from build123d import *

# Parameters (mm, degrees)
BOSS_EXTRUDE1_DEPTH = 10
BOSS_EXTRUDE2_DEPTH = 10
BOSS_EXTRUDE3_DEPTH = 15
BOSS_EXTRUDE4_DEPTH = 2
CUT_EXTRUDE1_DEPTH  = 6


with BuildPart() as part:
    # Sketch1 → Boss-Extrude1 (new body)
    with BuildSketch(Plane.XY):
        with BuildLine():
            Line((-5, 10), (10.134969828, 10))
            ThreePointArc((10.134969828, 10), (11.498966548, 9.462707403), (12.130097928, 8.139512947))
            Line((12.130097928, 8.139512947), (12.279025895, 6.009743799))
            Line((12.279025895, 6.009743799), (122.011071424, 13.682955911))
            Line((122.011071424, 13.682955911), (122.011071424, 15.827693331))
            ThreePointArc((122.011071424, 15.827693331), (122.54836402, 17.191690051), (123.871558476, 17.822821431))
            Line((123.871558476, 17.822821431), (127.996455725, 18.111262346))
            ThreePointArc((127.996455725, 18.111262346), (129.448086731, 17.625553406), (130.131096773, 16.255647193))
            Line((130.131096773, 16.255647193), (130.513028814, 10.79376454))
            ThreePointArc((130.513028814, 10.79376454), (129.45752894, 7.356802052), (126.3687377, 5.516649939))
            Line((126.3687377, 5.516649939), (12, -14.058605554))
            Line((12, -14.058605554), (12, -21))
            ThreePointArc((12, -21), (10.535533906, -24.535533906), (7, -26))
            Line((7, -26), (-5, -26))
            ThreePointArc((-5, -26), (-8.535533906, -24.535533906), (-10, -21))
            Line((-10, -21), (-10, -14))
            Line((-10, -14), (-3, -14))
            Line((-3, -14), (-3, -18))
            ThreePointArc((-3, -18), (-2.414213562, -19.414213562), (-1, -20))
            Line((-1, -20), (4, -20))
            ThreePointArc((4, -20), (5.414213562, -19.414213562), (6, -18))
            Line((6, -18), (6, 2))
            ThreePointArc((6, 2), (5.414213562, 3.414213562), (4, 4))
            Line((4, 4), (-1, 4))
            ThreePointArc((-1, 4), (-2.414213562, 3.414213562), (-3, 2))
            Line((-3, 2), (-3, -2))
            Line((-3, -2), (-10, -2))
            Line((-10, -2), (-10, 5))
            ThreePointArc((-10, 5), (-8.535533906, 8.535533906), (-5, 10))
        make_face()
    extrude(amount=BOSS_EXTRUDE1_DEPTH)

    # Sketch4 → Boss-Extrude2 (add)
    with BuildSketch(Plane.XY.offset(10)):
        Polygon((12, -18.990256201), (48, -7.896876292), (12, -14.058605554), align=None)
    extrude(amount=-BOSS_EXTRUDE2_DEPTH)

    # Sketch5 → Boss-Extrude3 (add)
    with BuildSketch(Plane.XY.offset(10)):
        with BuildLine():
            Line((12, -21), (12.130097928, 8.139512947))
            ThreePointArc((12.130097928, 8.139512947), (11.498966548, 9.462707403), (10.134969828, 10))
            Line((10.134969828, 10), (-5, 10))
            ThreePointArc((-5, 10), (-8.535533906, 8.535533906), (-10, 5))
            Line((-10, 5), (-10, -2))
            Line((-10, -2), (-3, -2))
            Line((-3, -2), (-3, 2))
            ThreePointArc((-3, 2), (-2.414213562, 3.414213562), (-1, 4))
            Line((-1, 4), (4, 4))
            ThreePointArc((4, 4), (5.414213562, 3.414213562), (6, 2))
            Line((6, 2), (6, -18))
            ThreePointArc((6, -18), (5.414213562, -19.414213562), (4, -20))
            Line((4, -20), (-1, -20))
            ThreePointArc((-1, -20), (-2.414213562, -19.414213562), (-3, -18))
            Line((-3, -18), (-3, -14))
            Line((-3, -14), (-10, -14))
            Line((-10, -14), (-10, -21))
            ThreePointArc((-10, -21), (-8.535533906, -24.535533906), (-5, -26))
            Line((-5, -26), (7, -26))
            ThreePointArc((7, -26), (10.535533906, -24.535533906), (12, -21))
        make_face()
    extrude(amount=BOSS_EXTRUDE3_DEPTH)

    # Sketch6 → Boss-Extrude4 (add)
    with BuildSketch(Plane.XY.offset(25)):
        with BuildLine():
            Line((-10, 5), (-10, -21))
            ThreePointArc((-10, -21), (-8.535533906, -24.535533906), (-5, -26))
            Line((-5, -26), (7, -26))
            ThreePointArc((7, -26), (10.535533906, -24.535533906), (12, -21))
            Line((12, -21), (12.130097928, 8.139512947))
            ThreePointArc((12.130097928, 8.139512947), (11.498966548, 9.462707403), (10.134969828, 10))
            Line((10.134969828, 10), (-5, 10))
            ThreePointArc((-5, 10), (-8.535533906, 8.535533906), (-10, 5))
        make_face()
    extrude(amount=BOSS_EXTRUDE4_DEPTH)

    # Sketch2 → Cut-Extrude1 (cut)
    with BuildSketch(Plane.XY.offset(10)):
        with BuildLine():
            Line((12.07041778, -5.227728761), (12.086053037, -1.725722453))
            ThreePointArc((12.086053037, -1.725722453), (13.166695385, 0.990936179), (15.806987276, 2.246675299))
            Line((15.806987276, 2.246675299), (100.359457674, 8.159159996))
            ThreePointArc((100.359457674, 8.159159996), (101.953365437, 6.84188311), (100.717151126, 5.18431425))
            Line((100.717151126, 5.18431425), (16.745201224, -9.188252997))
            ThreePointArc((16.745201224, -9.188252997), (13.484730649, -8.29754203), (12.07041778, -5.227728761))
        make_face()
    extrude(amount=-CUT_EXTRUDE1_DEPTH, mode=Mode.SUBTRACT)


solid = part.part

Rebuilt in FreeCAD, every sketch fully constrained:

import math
import FreeCAD as App
import Part
import Sketcher
Q = App.Units.Quantity


def add_polygon(sketch, points):
    """Adds a closed chain of lines whose ends are joined by coincident constraints."""
    first, n = sketch.GeometryCount, len(points)
    for a, b in zip(points, points[1:] + points[:1]):
        sketch.addGeometry(Part.LineSegment(App.Vector(*a, 0), App.Vector(*b, 0)), False)
    for i in range(n):
        sketch.addConstraint(Sketcher.Constraint("Coincident", first + i, 2, first + (i + 1) % n, 1))

doc = App.newDocument("Part")
body = doc.addObject("PartDesign::Body", "Body")

# Sketch on XY plane
sketch1 = body.newObject("Sketcher::SketchObject", "Sketch")
sketch1.AttachmentSupport = (doc.getObject("XY_Plane"), [""])
sketch1.MapMode = "FlatFace"
sketch1.addGeometry([
    Part.LineSegment(App.Vector(10.13497, 10, 0), App.Vector(-5, 10, 0)),  # 0
    Part.ArcOfCircle(Part.Circle(App.Vector(-5, 5, 0), App.Vector(0, 0, 1), 5), math.radians(90), math.radians(180)),  # 1
    Part.LineSegment(App.Vector(-10, 5, 0), App.Vector(-10, -2, 0)),  # 2
    Part.LineSegment(App.Vector(-10, -2, 0), App.Vector(-3, -2, 0)),  # 3
    Part.LineSegment(App.Vector(-3, -2, 0), App.Vector(-3, 2, 0)),  # 4
    Part.ArcOfCircle(Part.Circle(App.Vector(-1, 2, 0), App.Vector(0, 0, 1), 2), math.radians(90), math.radians(180)),  # 5
    Part.LineSegment(App.Vector(-1, 4, 0), App.Vector(4, 4, 0)),  # 6
    Part.ArcOfCircle(Part.Circle(App.Vector(4, 2, 0), App.Vector(0, 0, 1), 2), math.radians(0), math.radians(90)),  # 7
    Part.LineSegment(App.Vector(6, 2, 0), App.Vector(6, -18, 0)),  # 8
    Part.ArcOfCircle(Part.Circle(App.Vector(4, -18, 0), App.Vector(0, 0, 1), 2), math.radians(-90), math.radians(0)),  # 9
    Part.LineSegment(App.Vector(4, -20, 0), App.Vector(-1, -20, 0)),  # 10
    Part.ArcOfCircle(Part.Circle(App.Vector(-1, -18, 0), App.Vector(0, 0, 1), 2), math.radians(-180), math.radians(-90)),  # 11
    Part.LineSegment(App.Vector(-3, -18, 0), App.Vector(-3, -14, 0)),  # 12
    Part.LineSegment(App.Vector(-3, -14, 0), App.Vector(-10, -14, 0)),  # 13
    Part.LineSegment(App.Vector(-10, -14, 0), App.Vector(-10, -21, 0)),  # 14
    Part.ArcOfCircle(Part.Circle(App.Vector(-5, -21, 0), App.Vector(0, 0, 1), 5), math.radians(180), math.radians(270)),  # 15
    Part.LineSegment(App.Vector(-5, -26, 0), App.Vector(7, -26, 0)),  # 16
    Part.ArcOfCircle(Part.Circle(App.Vector(7, -21, 0), App.Vector(0, 0, 1), 5), math.radians(-90), math.radians(0)),  # 17
    Part.LineSegment(App.Vector(12, -21, 0), App.Vector(12, -14.058606, 0)),  # 18
    Part.LineSegment(App.Vector(12, -14.058606, 0), App.Vector(126.368738, 5.51665, 0)),  # 19
    Part.ArcOfCircle(Part.Circle(App.Vector(125.525209, 10.444982, 0), App.Vector(0, 0, 1), 5), math.radians(-80.287418), math.radians(4)),  # 20
    Part.LineSegment(App.Vector(130.513029, 10.793765, 0), App.Vector(130.131097, 16.255647, 0)),  # 21
    Part.ArcOfCircle(Part.Circle(App.Vector(128.135969, 16.116134, 0), App.Vector(0, 0, 1), 2), math.radians(4), math.radians(94)),  # 22
    Part.LineSegment(App.Vector(127.996456, 18.111262, 0), App.Vector(123.871558, 17.822821, 0)),  # 23
    Part.ArcOfCircle(Part.Circle(App.Vector(124.011071, 15.827693, 0), App.Vector(0, 0, 1), 2), math.radians(94), math.radians(180)),  # 24
    Part.LineSegment(App.Vector(122.011071, 15.827693, 0), App.Vector(122.011071, 13.682956, 0)),  # 25
    Part.LineSegment(App.Vector(122.011071, 13.682956, 0), App.Vector(12.279026, 6.009744, 0)),  # 26
    Part.LineSegment(App.Vector(12.279026, 6.009744, 0), App.Vector(12.130098, 8.139513, 0)),  # 27
    Part.ArcOfCircle(Part.Circle(App.Vector(10.13497, 8, 0), App.Vector(0, 0, 1), 2), math.radians(4), math.radians(90)),  # 28
], False)
sketch1.addConstraint([
    Sketcher.Constraint("Tangent", 0, 2, 1, 1),
    Sketcher.Constraint("Tangent", 1, 2, 2, 1),
    Sketcher.Constraint("Coincident", 2, 2, 3, 1),
    Sketcher.Constraint("Coincident", 3, 2, 4, 1),
    Sketcher.Constraint("Tangent", 4, 2, 5, 2),
    Sketcher.Constraint("Tangent", 5, 1, 6, 1),
    Sketcher.Constraint("Tangent", 6, 2, 7, 2),
    Sketcher.Constraint("Tangent", 7, 1, 8, 1),
    Sketcher.Constraint("Tangent", 8, 2, 9, 2),
    Sketcher.Constraint("Tangent", 9, 1, 10, 1),
    Sketcher.Constraint("Tangent", 10, 2, 11, 2),
    Sketcher.Constraint("Tangent", 11, 1, 12, 1),
    Sketcher.Constraint("Coincident", 12, 2, 13, 1),
    Sketcher.Constraint("Coincident", 13, 2, 14, 1),
    Sketcher.Constraint("Tangent", 14, 2, 15, 1),
    Sketcher.Constraint("Tangent", 15, 2, 16, 1),
    Sketcher.Constraint("Tangent", 16, 2, 17, 1),
    Sketcher.Constraint("Tangent", 17, 2, 18, 1),
    Sketcher.Constraint("Coincident", 18, 2, 19, 1),
    Sketcher.Constraint("Tangent", 19, 2, 20, 1),
    Sketcher.Constraint("Tangent", 20, 2, 21, 1),
    Sketcher.Constraint("Tangent", 21, 2, 22, 1),
    Sketcher.Constraint("Tangent", 22, 2, 23, 1),
    Sketcher.Constraint("Tangent", 23, 2, 24, 1),
    Sketcher.Constraint("Tangent", 24, 2, 25, 1),
    Sketcher.Constraint("Coincident", 25, 2, 26, 1),
    Sketcher.Constraint("Coincident", 26, 2, 27, 1),
    Sketcher.Constraint("Tangent", 27, 2, 28, 1),
    Sketcher.Constraint("Tangent", 28, 2, 0, 1),
    Sketcher.Constraint("Horizontal", 0),
    Sketcher.Constraint("Vertical", 2),
    Sketcher.Constraint("Horizontal", 3),
    Sketcher.Constraint("Vertical", 4),
    Sketcher.Constraint("Horizontal", 6),
    Sketcher.Constraint("Vertical", 8),
    Sketcher.Constraint("Horizontal", 10),
    Sketcher.Constraint("Vertical", 12),
    Sketcher.Constraint("Horizontal", 13),
    Sketcher.Constraint("Vertical", 14),
    Sketcher.Constraint("Horizontal", 16),
    Sketcher.Constraint("Vertical", 18),
    Sketcher.Constraint("Vertical", 25),
    Sketcher.Constraint("Equal", 5, 7),
    Sketcher.Constraint("Equal", 7, 9),
    Sketcher.Constraint("Equal", 9, 11),
    Sketcher.Constraint("Equal", 1, 15),
    Sketcher.Constraint("Equal", 15, 17),
    Sketcher.Constraint("Equal", 17, 20),
    Sketcher.Constraint("Equal", 11, 22),
    Sketcher.Constraint("Equal", 22, 24),
    Sketcher.Constraint("Equal", 24, 28),
    Sketcher.Constraint("Perpendicular", 21, 23),
    Sketcher.Constraint("Parallel", 23, 26),
    Sketcher.Constraint("Perpendicular", 26, 27),
    Sketcher.Constraint("Vertical", 5, 3, 11, 3),
    Sketcher.Constraint("Vertical", 1, 3, 15, 3),
    Sketcher.Constraint("Equal", 13, 2),
    Sketcher.Constraint("Equal", 4, 12),
    Sketcher.Constraint("Equal", 2, 14),
    Sketcher.Constraint("Radius", 1, 5.0),
    Sketcher.Constraint("Radius", 5, 2.0),
    Sketcher.Constraint("DistanceX", 3, 1, 3, 2, 7.0),
    Sketcher.Constraint("DistanceX", 6, 1, 6, 2, 5.0),
    Sketcher.Constraint("DistanceX", 16, 1, 16, 2, 12.0),
    Sketcher.Constraint("DistanceY", 4, 1, 4, 2, 4.0),
    Sketcher.Constraint("DistanceY", 8, 2, 8, 1, 20.0),
    Sketcher.Constraint("Angle", 21, Q("94 deg")),
    Sketcher.Constraint("Distance", 26, 110.0),
    Sketcher.Constraint("DistanceX", 1, 3, -1, 1, 5.0),
    Sketcher.Constraint("DistanceY", -1, 1, 1, 3, 5.0),
    Sketcher.Constraint("DistanceX", 0, 2, 0, 1, 15.13497),
    Sketcher.Constraint("Distance", 21, 5.47522),
    Sketcher.Constraint("Distance", 23, 4.13497),
    Sketcher.Constraint("Distance", 27, 2.13497),
    Sketcher.Constraint("DistanceY", 18, 1, 18, 2, 6.941394),
    Sketcher.Constraint("DistanceY", 25, 2, 25, 1, 2.144737),
])
pad1 = body.newObject("PartDesign::Pad", "Pad")
pad1.Profile = sketch1
pad1.Length = 10

# Sketch on XY plane
sketch2 = body.newObject("Sketcher::SketchObject", "Sketch001")
sketch2.AttachmentSupport = (doc.getObject("XY_Plane"), [""])
sketch2.MapMode = "FlatFace"
sketch2.AttachmentOffset = App.Placement(App.Vector(0, 0, 10), App.Rotation())
add_polygon(sketch2, [(12, -18.990256), (48, -7.896876), (12, -14.058606)])  # lines 0-2
sketch2.addConstraint([
    Sketcher.Constraint("Vertical", 2),
    Sketcher.Constraint("DistanceX", -1, 1, 0, 2, 48.0),
    Sketcher.Constraint("DistanceX", -1, 1, 1, 2, 12.0),
    Sketcher.Constraint("DistanceY", 2, 2, 2, 1, 4.931651),
    Sketcher.Constraint("Distance", 1, 36.523512),
    Sketcher.Constraint("DistanceY", 0, 2, -1, 1, 7.896876),
])
pad2 = body.newObject("PartDesign::Pad", "Pad001")
pad2.Profile = sketch2
pad2.Length = 10
pad2.Reversed = True

# Sketch on XY plane
sketch3 = body.newObject("Sketcher::SketchObject", "Sketch002")
sketch3.AttachmentSupport = (doc.getObject("XY_Plane"), [""])
sketch3.MapMode = "FlatFace"
sketch3.AttachmentOffset = App.Placement(App.Vector(0, 0, 10), App.Rotation())
sketch3.addGeometry([
    Part.LineSegment(App.Vector(12, -21, 0), App.Vector(12.130098, 8.139513, 0)),  # 0
    Part.ArcOfCircle(Part.Circle(App.Vector(10.13497, 8, 0), App.Vector(0, 0, 1), 2), math.radians(4), math.radians(90)),  # 1
    Part.LineSegment(App.Vector(10.13497, 10, 0), App.Vector(-5, 10, 0)),  # 2
    Part.ArcOfCircle(Part.Circle(App.Vector(-5, 5, 0), App.Vector(0, 0, 1), 5), math.radians(90), math.radians(180)),  # 3
    Part.LineSegment(App.Vector(-10, 5, 0), App.Vector(-10, -2, 0)),  # 4
    Part.LineSegment(App.Vector(-10, -2, 0), App.Vector(-3, -2, 0)),  # 5
    Part.LineSegment(App.Vector(-3, -2, 0), App.Vector(-3, 2, 0)),  # 6
    Part.ArcOfCircle(Part.Circle(App.Vector(-1, 2, 0), App.Vector(0, 0, 1), 2), math.radians(90), math.radians(180)),  # 7
    Part.LineSegment(App.Vector(-1, 4, 0), App.Vector(4, 4, 0)),  # 8
    Part.ArcOfCircle(Part.Circle(App.Vector(4, 2, 0), App.Vector(0, 0, 1), 2), math.radians(0), math.radians(90)),  # 9
    Part.LineSegment(App.Vector(6, 2, 0), App.Vector(6, -18, 0)),  # 10
    Part.ArcOfCircle(Part.Circle(App.Vector(4, -18, 0), App.Vector(0, 0, 1), 2), math.radians(-90), math.radians(0)),  # 11
    Part.LineSegment(App.Vector(4, -20, 0), App.Vector(-1, -20, 0)),  # 12
    Part.ArcOfCircle(Part.Circle(App.Vector(-1, -18, 0), App.Vector(0, 0, 1), 2), math.radians(-180), math.radians(-90)),  # 13
    Part.LineSegment(App.Vector(-3, -18, 0), App.Vector(-3, -14, 0)),  # 14
    Part.LineSegment(App.Vector(-3, -14, 0), App.Vector(-10, -14, 0)),  # 15
    Part.LineSegment(App.Vector(-10, -14, 0), App.Vector(-10, -21, 0)),  # 16
    Part.ArcOfCircle(Part.Circle(App.Vector(-5, -21, 0), App.Vector(0, 0, 1), 5), math.radians(180), math.radians(270)),  # 17
    Part.LineSegment(App.Vector(-5, -26, 0), App.Vector(7, -26, 0)),  # 18
    Part.ArcOfCircle(Part.Circle(App.Vector(7, -21, 0), App.Vector(0, 0, 1), 5), math.radians(-90), math.radians(0)),  # 19
], False)
sketch3.addConstraint([
    Sketcher.Constraint("Coincident", 0, 2, 1, 1),
    Sketcher.Constraint("Tangent", 1, 2, 2, 1),
    Sketcher.Constraint("Tangent", 2, 2, 3, 1),
    Sketcher.Constraint("Tangent", 3, 2, 4, 1),
    Sketcher.Constraint("Coincident", 4, 2, 5, 1),
    Sketcher.Constraint("Coincident", 5, 2, 6, 1),
    Sketcher.Constraint("Tangent", 6, 2, 7, 2),
    Sketcher.Constraint("Tangent", 7, 1, 8, 1),
    Sketcher.Constraint("Tangent", 8, 2, 9, 2),
    Sketcher.Constraint("Tangent", 9, 1, 10, 1),
    Sketcher.Constraint("Tangent", 10, 2, 11, 2),
    Sketcher.Constraint("Tangent", 11, 1, 12, 1),
    Sketcher.Constraint("Tangent", 12, 2, 13, 2),
    Sketcher.Constraint("Tangent", 13, 1, 14, 1),
    Sketcher.Constraint("Coincident", 14, 2, 15, 1),
    Sketcher.Constraint("Coincident", 15, 2, 16, 1),
    Sketcher.Constraint("Tangent", 16, 2, 17, 1),
    Sketcher.Constraint("Tangent", 17, 2, 18, 1),
    Sketcher.Constraint("Tangent", 18, 2, 19, 1),
    Sketcher.Constraint("Coincident", 19, 2, 0, 1),
    Sketcher.Constraint("Horizontal", 2),
    Sketcher.Constraint("Vertical", 4),
    Sketcher.Constraint("Horizontal", 5),
    Sketcher.Constraint("Vertical", 6),
    Sketcher.Constraint("Horizontal", 8),
    Sketcher.Constraint("Vertical", 10),
    Sketcher.Constraint("Horizontal", 12),
    Sketcher.Constraint("Vertical", 14),
    Sketcher.Constraint("Horizontal", 15),
    Sketcher.Constraint("Vertical", 16),
    Sketcher.Constraint("Horizontal", 18),
    Sketcher.Constraint("Equal", 1, 7),
    Sketcher.Constraint("Equal", 7, 9),
    Sketcher.Constraint("Equal", 9, 11),
    Sketcher.Constraint("Equal", 11, 13),
    Sketcher.Constraint("Equal", 3, 17),
    Sketcher.Constraint("Equal", 17, 19),
    Sketcher.Constraint("Horizontal", 16, 2, 19, 2),
    Sketcher.Constraint("Vertical", 7, 3, 13, 3),
    Sketcher.Constraint("Vertical", 3, 3, 17, 3),
    Sketcher.Constraint("Equal", 15, 4),
    Sketcher.Constraint("Equal", 6, 14),
    Sketcher.Constraint("Equal", 4, 16),
    Sketcher.Constraint("Radius", 1, 2.0),
    Sketcher.Constraint("Radius", 3, 5.0),
    Sketcher.Constraint("DistanceX", 5, 1, 5, 2, 7.0),
    Sketcher.Constraint("DistanceX", 8, 1, 8, 2, 5.0),
    Sketcher.Constraint("DistanceX", 18, 1, 18, 2, 12.0),
    Sketcher.Constraint("DistanceY", 6, 1, 6, 2, 4.0),
    Sketcher.Constraint("DistanceY", 10, 2, 10, 1, 20.0),
    Sketcher.Constraint("DistanceY", -1, 1, 1, 3, 8.0),
    Sketcher.Constraint("DistanceX", 3, 3, -1, 1, 5.0),
    Sketcher.Constraint("DistanceX", 2, 2, 2, 1, 15.13497),
    Sketcher.Constraint("DistanceX", 1, 3, 0, 2, 1.995128),
])
pad3 = body.newObject("PartDesign::Pad", "Pad002")
pad3.Profile = sketch3
pad3.Length = 15

# Sketch on XY plane
sketch4 = body.newObject("Sketcher::SketchObject", "Sketch003")
sketch4.AttachmentSupport = (doc.getObject("XY_Plane"), [""])
sketch4.MapMode = "FlatFace"
sketch4.AttachmentOffset = App.Placement(App.Vector(0, 0, 25), App.Rotation())
sketch4.addGeometry([
    Part.LineSegment(App.Vector(-10, 5, 0), App.Vector(-10, -21, 0)),  # 0
    Part.ArcOfCircle(Part.Circle(App.Vector(-5, -21, 0), App.Vector(0, 0, 1), 5), math.radians(180), math.radians(270)),  # 1
    Part.LineSegment(App.Vector(-5, -26, 0), App.Vector(7, -26, 0)),  # 2
    Part.ArcOfCircle(Part.Circle(App.Vector(7, -21, 0), App.Vector(0, 0, 1), 5), math.radians(-90), math.radians(0)),  # 3
    Part.LineSegment(App.Vector(12, -21, 0), App.Vector(12.130098, 8.139513, 0)),  # 4
    Part.ArcOfCircle(Part.Circle(App.Vector(10.13497, 8, 0), App.Vector(0, 0, 1), 2), math.radians(4), math.radians(90)),  # 5
    Part.LineSegment(App.Vector(10.13497, 10, 0), App.Vector(-5, 10, 0)),  # 6
    Part.ArcOfCircle(Part.Circle(App.Vector(-5, 5, 0), App.Vector(0, 0, 1), 5), math.radians(90), math.radians(180)),  # 7
], False)
sketch4.addConstraint([
    Sketcher.Constraint("Tangent", 0, 2, 1, 1),
    Sketcher.Constraint("Tangent", 1, 2, 2, 1),
    Sketcher.Constraint("Tangent", 2, 2, 3, 1),
    Sketcher.Constraint("Coincident", 3, 2, 4, 1),
    Sketcher.Constraint("Coincident", 4, 2, 5, 1),
    Sketcher.Constraint("Tangent", 5, 2, 6, 1),
    Sketcher.Constraint("Tangent", 6, 2, 7, 1),
    Sketcher.Constraint("Tangent", 7, 2, 0, 1),
    Sketcher.Constraint("Vertical", 0),
    Sketcher.Constraint("Horizontal", 2),
    Sketcher.Constraint("Horizontal", 6),
    Sketcher.Constraint("Equal", 1, 3),
    Sketcher.Constraint("Equal", 3, 7),
    Sketcher.Constraint("Horizontal", 0, 2, 3, 2),
    Sketcher.Constraint("Radius", 1, 5.0),
    Sketcher.Constraint("Radius", 5, 2.0),
    Sketcher.Constraint("DistanceX", 2, 1, 2, 2, 12.0),
    Sketcher.Constraint("DistanceY", 0, 2, 0, 1, 26.0),
    Sketcher.Constraint("DistanceX", 1, 3, -1, 1, 5.0),
    Sketcher.Constraint("DistanceY", 1, 3, -1, 1, 21.0),
    Sketcher.Constraint("DistanceX", 6, 2, 6, 1, 15.13497),
    Sketcher.Constraint("DistanceX", 5, 3, 4, 2, 1.995128),
])
pad4 = body.newObject("PartDesign::Pad", "Pad003")
pad4.Profile = sketch4
pad4.Length = 2

# Sketch on XY plane
sketch5 = body.newObject("Sketcher::SketchObject", "Sketch004")
sketch5.AttachmentSupport = (doc.getObject("XY_Plane"), [""])
sketch5.MapMode = "FlatFace"
sketch5.AttachmentOffset = App.Placement(App.Vector(0, 0, 10), App.Rotation())
sketch5.addGeometry([
    Part.LineSegment(App.Vector(12.086053, -1.725722, 0), App.Vector(12.070418, -5.227729, 0)),  # 0
    Part.ArcOfCircle(Part.Circle(App.Vector(16.070378, -5.245587, 0), App.Vector(0, 0, 1), 4), math.radians(179.744196), math.radians(279.712582)),  # 1
    Part.LineSegment(App.Vector(16.745201, -9.188253, 0), App.Vector(100.717151, 5.184314, 0)),  # 2
    Part.ArcOfCircle(Part.Circle(App.Vector(100.464092, 6.662814, 0), App.Vector(0, 0, 1), 1.5), math.radians(-80.287418), math.radians(94)),  # 3
    Part.LineSegment(App.Vector(100.359458, 8.15916, 0), App.Vector(15.806987, 2.246675, 0)),  # 4
    Part.ArcOfCircle(Part.Circle(App.Vector(16.086013, -1.743581, 0), App.Vector(0, 0, 1), 4), math.radians(94), math.radians(179.744196)),  # 5
], False)
sketch5.addConstraint([
    Sketcher.Constraint("Tangent", 0, 2, 1, 1),
    Sketcher.Constraint("Tangent", 1, 2, 2, 1),
    Sketcher.Constraint("Tangent", 2, 2, 3, 1),
    Sketcher.Constraint("Tangent", 3, 2, 4, 1),
    Sketcher.Constraint("Tangent", 4, 2, 5, 1),
    Sketcher.Constraint("Tangent", 5, 2, 0, 1),
    Sketcher.Constraint("Equal", 1, 5),
    Sketcher.Constraint("Radius", 1, 4.0),
    Sketcher.Constraint("Radius", 3, 1.5),
    Sketcher.Constraint("Angle", 4, Q("-176 deg")),
    Sketcher.Constraint("DistanceX", -1, 1, 1, 2, 16.745201),
    Sketcher.Constraint("DistanceY", 1, 3, 3, 3, 11.908401),
    Sketcher.Constraint("Distance", 0, 3.502041),
    Sketcher.Constraint("Distance", 2, 85.193069),
    Sketcher.Constraint("DistanceY", 5, 3, -1, 1, 1.743581),
])
pocket1 = body.newObject("PartDesign::Pocket", "Pocket")
pocket1.Profile = sketch5
pocket1.Length = 6

doc.recompute()
